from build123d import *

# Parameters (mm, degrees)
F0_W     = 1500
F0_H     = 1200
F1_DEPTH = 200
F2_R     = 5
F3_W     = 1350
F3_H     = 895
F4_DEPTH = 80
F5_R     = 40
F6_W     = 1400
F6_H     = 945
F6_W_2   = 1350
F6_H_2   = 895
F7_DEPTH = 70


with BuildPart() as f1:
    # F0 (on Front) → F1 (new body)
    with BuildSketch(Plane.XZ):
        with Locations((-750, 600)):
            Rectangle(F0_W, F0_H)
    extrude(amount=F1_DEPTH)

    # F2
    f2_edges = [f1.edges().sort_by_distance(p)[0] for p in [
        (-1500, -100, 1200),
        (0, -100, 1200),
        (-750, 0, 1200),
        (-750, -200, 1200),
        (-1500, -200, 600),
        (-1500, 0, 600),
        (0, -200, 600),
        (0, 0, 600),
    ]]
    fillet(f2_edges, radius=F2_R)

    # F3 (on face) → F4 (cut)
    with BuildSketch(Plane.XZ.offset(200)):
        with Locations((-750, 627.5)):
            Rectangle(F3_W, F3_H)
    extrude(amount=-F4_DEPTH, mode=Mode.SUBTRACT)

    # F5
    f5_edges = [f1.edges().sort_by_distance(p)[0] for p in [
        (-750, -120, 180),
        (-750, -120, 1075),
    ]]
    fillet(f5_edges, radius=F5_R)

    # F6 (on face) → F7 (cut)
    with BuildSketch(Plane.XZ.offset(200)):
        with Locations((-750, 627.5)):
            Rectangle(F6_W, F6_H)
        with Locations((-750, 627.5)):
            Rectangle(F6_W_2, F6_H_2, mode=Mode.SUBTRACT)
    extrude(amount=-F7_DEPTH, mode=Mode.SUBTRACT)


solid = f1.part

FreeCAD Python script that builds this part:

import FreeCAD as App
import Part
import Sketcher
from FreeCAD import Vector
Q = App.Units.Quantity


def edges_at(feature, points):
    """Names of the edges that pass closest to the given points."""
    edges = feature.Shape.Edges
    near = lambda p: min(range(len(edges)), key=lambda i: edges[i].distToShape(Part.Vertex(*p))[0])
    return sorted({f"Edge{near(p) + 1}" for p in points})

doc = App.newDocument("Part")
body = doc.addObject("PartDesign::Body", "Body")

sketch1 = body.newObject("Sketcher::SketchObject", "Sketch")
sketch1.AttachmentSupport = (doc.getObject("XZ_Plane"), [""])
sketch1.MapMode = "FlatFace"
sketch1.addGeometry([
    Part.LineSegment(Vector(-1500, 1200, 0), Vector(-1500, 0, 0)),
    Part.LineSegment(Vector(-1500, 0, 0), Vector(0, 0, 0)),
    Part.LineSegment(Vector(0, 0, 0), Vector(0, 1200, 0)),
    Part.LineSegment(Vector(0, 1200, 0), Vector(-1500, 1200, 0)),
], False)
sketch1.addConstraint([
    Sketcher.Constraint("Coincident", 0, 2, 1, 1),
    Sketcher.Constraint("Coincident", 1, 2, 2, 1),
    Sketcher.Constraint("Coincident", 2, 2, 3, 1),
    Sketcher.Constraint("Coincident", 3, 2, 0, 1),
    Sketcher.Constraint("Vertical", 0),
    Sketcher.Constraint("Horizontal", 1),
    Sketcher.Constraint("Vertical", 2),
    Sketcher.Constraint("Horizontal", 3),
    Sketcher.Constraint("Coincident", 1, 2, -1, 1),
    Sketcher.Constraint("DistanceX", 1, 1, 1, 2, Q("1500 mm")),
    Sketcher.Constraint("DistanceY", 0, 2, 0, 1, Q("1200 mm")),
])
pad1 = body.newObject("PartDesign::Pad", "Pad")
pad1.Profile = sketch1
pad1.Length = 200
doc.recompute()

fillet = body.newObject("PartDesign::Fillet", "Fillet")
fillet.Base = (pad1, edges_at(pad1, [
    (-1500, -100, 1200),
    (0, -100, 1200),
    (-750, 0, 1200),
    (-750, -200, 1200),
    (-1500, -200, 600),
    (-1500, 0, 600),
    (0, -200, 600),
    (0, 0, 600),
]))
fillet.Radius = 5

sketch2 = body.newObject("Sketcher::SketchObject", "Sketch001")
sketch2.AttachmentSupport = (doc.getObject("XZ_Plane"), [""])
sketch2.MapMode = "FlatFace"
sketch2.AttachmentOffset = App.Placement(Vector(0, 0, 200), App.Rotation())
sketch2.addGeometry([
    Part.LineSegment(Vector(-1425, 1075, 0), Vector(-1425, 180, 0)),
    Part.LineSegment(Vector(-1425, 180, 0), Vector(-75, 180, 0)),
    Part.LineSegment(Vector(-75, 180, 0), Vector(-75, 1075, 0)),
    Part.LineSegment(Vector(-75, 1075, 0), Vector(-1425, 1075, 0)),
], False)
sketch2.addConstraint([
    Sketcher.Constraint("Coincident", 0, 2, 1, 1),
    Sketcher.Constraint("Coincident", 1, 2, 2, 1),
    Sketcher.Constraint("Coincident", 2, 2, 3, 1),
    Sketcher.Constraint("Coincident", 3, 2, 0, 1),
    Sketcher.Constraint("Vertical", 0),
    Sketcher.Constraint("Horizontal", 1),
    Sketcher.Constraint("Vertical", 2),
    Sketcher.Constraint("Horizontal", 3),
    Sketcher.Constraint("DistanceX", 1, 1, 1, 2, Q("1350 mm")),
    Sketcher.Constraint("DistanceY", 0, 2, 0, 1, Q("895 mm")),
    Sketcher.Constraint("DistanceX", 0, 2, -1, 1, Q("1425 mm")),
    Sketcher.Constraint("DistanceY", -1, 1, 0, 2, Q("180 mm")),
])
pocket1 = body.newObject("PartDesign::Pocket", "Pocket")
pocket1.Profile = sketch2
pocket1.Length = 80
doc.recompute()

fillet2 = body.newObject("PartDesign::Fillet", "Fillet001")
fillet2.Base = (pocket1, edges_at(pocket1, [(-750, -120, 180), (-750, -120, 1075)]))
fillet2.Radius = 40

sketch3 = body.newObject("Sketcher::SketchObject", "Sketch002")
sketch3.AttachmentSupport = (doc.getObject("XZ_Plane"), [""])
sketch3.MapMode = "FlatFace"
sketch3.AttachmentOffset = App.Placement(Vector(0, 0, 200), App.Rotation())
sketch3.addGeometry([
    Part.LineSegment(Vector(-1450, 1100, 0), Vector(-1450, 155, 0)),
    Part.LineSegment(Vector(-1450, 155, 0), Vector(-50, 155, 0)),
    Part.LineSegment(Vector(-50, 155, 0), Vector(-50, 1100, 0)),
    Part.LineSegment(Vector(-50, 1100, 0), Vector(-1450, 1100, 0)),
    Part.LineSegment(Vector(-75, 180, 0), Vector(-1425, 180, 0)),
    Part.LineSegment(Vector(-1425, 180, 0), Vector(-1425, 1075, 0)),
    Part.LineSegment(Vector(-1425, 1075, 0), Vector(-75, 1075, 0)),
    Part.LineSegment(Vector(-75, 1075, 0), Vector(-75, 180, 0)),
], False)
sketch3.addConstraint([
    Sketcher.Constraint("Coincident", 0, 2, 1, 1),
    Sketcher.Constraint("Coincident", 1, 2, 2, 1),
    Sketcher.Constraint("Coincident", 2, 2, 3, 1),
    Sketcher.Constraint("Coincident", 3, 2, 0, 1),
    Sketcher.Constraint("Coincident", 4, 2, 5, 1),
    Sketcher.Constraint("Coincident", 5, 2, 6, 1),
    Sketcher.Constraint("Coincident", 6, 2, 7, 1),
    Sketcher.Constraint("Coincident", 7, 2, 4, 1),
    Sketcher.Constraint("Vertical", 0),
    Sketcher.Constraint("Horizontal", 1),
    Sketcher.Constraint("Vertical", 2),
    Sketcher.Constraint("Horizontal", 3),
    Sketcher.Constraint("Horizontal", 4),
    Sketcher.Constraint("Vertical", 5),
    Sketcher.Constraint("Horizontal", 6),
    Sketcher.Constraint("Vertical", 7),
    Sketcher.Constraint("DistanceX", 1, 1, 1, 2, Q("1400 mm")),
    Sketcher.Constraint("DistanceX", 4, 2, 4, 1, Q("1350 mm")),
    Sketcher.Constraint("DistanceY", 0, 2, 0, 1, Q("945 mm")),
    Sketcher.Constraint("DistanceY", 5, 1, 5, 2, Q("895 mm")),
    Sketcher.Constraint("DistanceX", 0, 2, -1, 1, Q("1450 mm")),
    Sketcher.Constraint("DistanceY", -1, 1, 0, 2, Q("155 mm")),
    Sketcher.Constraint("DistanceX", 4, 2, -1, 1, Q("1425 mm")),
    Sketcher.Constraint("DistanceY", -1, 1, 4, 2, Q("180 mm")),
])
pocket2 = body.newObject("PartDesign::Pocket", "Pocket001")
pocket2.Profile = sketch3
pocket2.Length = 70

doc.recompute()
